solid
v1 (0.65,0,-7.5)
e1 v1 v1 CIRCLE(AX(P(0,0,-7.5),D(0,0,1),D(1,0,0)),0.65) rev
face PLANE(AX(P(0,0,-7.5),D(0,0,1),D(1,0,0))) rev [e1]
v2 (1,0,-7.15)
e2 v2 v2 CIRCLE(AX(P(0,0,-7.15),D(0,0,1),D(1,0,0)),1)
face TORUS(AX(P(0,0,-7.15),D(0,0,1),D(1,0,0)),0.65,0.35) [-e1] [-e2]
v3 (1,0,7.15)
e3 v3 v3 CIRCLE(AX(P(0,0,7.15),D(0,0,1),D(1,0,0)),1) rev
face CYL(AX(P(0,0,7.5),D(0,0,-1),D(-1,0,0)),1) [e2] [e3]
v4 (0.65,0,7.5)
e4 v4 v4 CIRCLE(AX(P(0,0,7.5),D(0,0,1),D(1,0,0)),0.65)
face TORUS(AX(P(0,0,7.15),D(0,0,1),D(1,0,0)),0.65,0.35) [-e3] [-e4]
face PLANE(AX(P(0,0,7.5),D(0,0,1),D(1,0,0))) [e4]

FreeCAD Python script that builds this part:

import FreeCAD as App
import Part
import Sketcher
from FreeCAD import Vector


def edges_at(feature, points):
    """Names of the edges that pass closest to the given points."""
    edges = feature.Shape.Edges
    near = lambda p: min(range(len(edges)), key=lambda i: edges[i].distToShape(Part.Vertex(*p))[0])
    return sorted({f"Edge{near(p) + 1}" for p in points})

doc = App.newDocument("Part")
body = doc.addObject("PartDesign::Body", "Body")

sketch1 = body.newObject("Sketcher::SketchObject", "Sketch")
sketch1.AttachmentSupport = (doc.getObject("XY_Plane"), [""])
sketch1.MapMode = "FlatFace"
sketch1.addGeometry(Part.Circle(Vector(0, 0, 0), Vector(0, 0, 1), 1), False)
sketch1.addConstraint(Sketcher.Constraint("Coincident", 0, 3, -1, 1))
sketch1.addConstraint(Sketcher.Constraint("Diameter", 0, 2.0))
pad1 = body.newObject("PartDesign::Pad", "Pad")
pad1.Profile = sketch1
pad1.Length = 15
pad1.Midplane = True
doc.recompute()

fillet = body.newObject("PartDesign::Fillet", "Fillet")
fillet.Base = (pad1, edges_at(pad1, [(-1, 0, -7.5), (-1, 0, 7.5)]))
fillet.Radius = 0.35

doc.recompute()
